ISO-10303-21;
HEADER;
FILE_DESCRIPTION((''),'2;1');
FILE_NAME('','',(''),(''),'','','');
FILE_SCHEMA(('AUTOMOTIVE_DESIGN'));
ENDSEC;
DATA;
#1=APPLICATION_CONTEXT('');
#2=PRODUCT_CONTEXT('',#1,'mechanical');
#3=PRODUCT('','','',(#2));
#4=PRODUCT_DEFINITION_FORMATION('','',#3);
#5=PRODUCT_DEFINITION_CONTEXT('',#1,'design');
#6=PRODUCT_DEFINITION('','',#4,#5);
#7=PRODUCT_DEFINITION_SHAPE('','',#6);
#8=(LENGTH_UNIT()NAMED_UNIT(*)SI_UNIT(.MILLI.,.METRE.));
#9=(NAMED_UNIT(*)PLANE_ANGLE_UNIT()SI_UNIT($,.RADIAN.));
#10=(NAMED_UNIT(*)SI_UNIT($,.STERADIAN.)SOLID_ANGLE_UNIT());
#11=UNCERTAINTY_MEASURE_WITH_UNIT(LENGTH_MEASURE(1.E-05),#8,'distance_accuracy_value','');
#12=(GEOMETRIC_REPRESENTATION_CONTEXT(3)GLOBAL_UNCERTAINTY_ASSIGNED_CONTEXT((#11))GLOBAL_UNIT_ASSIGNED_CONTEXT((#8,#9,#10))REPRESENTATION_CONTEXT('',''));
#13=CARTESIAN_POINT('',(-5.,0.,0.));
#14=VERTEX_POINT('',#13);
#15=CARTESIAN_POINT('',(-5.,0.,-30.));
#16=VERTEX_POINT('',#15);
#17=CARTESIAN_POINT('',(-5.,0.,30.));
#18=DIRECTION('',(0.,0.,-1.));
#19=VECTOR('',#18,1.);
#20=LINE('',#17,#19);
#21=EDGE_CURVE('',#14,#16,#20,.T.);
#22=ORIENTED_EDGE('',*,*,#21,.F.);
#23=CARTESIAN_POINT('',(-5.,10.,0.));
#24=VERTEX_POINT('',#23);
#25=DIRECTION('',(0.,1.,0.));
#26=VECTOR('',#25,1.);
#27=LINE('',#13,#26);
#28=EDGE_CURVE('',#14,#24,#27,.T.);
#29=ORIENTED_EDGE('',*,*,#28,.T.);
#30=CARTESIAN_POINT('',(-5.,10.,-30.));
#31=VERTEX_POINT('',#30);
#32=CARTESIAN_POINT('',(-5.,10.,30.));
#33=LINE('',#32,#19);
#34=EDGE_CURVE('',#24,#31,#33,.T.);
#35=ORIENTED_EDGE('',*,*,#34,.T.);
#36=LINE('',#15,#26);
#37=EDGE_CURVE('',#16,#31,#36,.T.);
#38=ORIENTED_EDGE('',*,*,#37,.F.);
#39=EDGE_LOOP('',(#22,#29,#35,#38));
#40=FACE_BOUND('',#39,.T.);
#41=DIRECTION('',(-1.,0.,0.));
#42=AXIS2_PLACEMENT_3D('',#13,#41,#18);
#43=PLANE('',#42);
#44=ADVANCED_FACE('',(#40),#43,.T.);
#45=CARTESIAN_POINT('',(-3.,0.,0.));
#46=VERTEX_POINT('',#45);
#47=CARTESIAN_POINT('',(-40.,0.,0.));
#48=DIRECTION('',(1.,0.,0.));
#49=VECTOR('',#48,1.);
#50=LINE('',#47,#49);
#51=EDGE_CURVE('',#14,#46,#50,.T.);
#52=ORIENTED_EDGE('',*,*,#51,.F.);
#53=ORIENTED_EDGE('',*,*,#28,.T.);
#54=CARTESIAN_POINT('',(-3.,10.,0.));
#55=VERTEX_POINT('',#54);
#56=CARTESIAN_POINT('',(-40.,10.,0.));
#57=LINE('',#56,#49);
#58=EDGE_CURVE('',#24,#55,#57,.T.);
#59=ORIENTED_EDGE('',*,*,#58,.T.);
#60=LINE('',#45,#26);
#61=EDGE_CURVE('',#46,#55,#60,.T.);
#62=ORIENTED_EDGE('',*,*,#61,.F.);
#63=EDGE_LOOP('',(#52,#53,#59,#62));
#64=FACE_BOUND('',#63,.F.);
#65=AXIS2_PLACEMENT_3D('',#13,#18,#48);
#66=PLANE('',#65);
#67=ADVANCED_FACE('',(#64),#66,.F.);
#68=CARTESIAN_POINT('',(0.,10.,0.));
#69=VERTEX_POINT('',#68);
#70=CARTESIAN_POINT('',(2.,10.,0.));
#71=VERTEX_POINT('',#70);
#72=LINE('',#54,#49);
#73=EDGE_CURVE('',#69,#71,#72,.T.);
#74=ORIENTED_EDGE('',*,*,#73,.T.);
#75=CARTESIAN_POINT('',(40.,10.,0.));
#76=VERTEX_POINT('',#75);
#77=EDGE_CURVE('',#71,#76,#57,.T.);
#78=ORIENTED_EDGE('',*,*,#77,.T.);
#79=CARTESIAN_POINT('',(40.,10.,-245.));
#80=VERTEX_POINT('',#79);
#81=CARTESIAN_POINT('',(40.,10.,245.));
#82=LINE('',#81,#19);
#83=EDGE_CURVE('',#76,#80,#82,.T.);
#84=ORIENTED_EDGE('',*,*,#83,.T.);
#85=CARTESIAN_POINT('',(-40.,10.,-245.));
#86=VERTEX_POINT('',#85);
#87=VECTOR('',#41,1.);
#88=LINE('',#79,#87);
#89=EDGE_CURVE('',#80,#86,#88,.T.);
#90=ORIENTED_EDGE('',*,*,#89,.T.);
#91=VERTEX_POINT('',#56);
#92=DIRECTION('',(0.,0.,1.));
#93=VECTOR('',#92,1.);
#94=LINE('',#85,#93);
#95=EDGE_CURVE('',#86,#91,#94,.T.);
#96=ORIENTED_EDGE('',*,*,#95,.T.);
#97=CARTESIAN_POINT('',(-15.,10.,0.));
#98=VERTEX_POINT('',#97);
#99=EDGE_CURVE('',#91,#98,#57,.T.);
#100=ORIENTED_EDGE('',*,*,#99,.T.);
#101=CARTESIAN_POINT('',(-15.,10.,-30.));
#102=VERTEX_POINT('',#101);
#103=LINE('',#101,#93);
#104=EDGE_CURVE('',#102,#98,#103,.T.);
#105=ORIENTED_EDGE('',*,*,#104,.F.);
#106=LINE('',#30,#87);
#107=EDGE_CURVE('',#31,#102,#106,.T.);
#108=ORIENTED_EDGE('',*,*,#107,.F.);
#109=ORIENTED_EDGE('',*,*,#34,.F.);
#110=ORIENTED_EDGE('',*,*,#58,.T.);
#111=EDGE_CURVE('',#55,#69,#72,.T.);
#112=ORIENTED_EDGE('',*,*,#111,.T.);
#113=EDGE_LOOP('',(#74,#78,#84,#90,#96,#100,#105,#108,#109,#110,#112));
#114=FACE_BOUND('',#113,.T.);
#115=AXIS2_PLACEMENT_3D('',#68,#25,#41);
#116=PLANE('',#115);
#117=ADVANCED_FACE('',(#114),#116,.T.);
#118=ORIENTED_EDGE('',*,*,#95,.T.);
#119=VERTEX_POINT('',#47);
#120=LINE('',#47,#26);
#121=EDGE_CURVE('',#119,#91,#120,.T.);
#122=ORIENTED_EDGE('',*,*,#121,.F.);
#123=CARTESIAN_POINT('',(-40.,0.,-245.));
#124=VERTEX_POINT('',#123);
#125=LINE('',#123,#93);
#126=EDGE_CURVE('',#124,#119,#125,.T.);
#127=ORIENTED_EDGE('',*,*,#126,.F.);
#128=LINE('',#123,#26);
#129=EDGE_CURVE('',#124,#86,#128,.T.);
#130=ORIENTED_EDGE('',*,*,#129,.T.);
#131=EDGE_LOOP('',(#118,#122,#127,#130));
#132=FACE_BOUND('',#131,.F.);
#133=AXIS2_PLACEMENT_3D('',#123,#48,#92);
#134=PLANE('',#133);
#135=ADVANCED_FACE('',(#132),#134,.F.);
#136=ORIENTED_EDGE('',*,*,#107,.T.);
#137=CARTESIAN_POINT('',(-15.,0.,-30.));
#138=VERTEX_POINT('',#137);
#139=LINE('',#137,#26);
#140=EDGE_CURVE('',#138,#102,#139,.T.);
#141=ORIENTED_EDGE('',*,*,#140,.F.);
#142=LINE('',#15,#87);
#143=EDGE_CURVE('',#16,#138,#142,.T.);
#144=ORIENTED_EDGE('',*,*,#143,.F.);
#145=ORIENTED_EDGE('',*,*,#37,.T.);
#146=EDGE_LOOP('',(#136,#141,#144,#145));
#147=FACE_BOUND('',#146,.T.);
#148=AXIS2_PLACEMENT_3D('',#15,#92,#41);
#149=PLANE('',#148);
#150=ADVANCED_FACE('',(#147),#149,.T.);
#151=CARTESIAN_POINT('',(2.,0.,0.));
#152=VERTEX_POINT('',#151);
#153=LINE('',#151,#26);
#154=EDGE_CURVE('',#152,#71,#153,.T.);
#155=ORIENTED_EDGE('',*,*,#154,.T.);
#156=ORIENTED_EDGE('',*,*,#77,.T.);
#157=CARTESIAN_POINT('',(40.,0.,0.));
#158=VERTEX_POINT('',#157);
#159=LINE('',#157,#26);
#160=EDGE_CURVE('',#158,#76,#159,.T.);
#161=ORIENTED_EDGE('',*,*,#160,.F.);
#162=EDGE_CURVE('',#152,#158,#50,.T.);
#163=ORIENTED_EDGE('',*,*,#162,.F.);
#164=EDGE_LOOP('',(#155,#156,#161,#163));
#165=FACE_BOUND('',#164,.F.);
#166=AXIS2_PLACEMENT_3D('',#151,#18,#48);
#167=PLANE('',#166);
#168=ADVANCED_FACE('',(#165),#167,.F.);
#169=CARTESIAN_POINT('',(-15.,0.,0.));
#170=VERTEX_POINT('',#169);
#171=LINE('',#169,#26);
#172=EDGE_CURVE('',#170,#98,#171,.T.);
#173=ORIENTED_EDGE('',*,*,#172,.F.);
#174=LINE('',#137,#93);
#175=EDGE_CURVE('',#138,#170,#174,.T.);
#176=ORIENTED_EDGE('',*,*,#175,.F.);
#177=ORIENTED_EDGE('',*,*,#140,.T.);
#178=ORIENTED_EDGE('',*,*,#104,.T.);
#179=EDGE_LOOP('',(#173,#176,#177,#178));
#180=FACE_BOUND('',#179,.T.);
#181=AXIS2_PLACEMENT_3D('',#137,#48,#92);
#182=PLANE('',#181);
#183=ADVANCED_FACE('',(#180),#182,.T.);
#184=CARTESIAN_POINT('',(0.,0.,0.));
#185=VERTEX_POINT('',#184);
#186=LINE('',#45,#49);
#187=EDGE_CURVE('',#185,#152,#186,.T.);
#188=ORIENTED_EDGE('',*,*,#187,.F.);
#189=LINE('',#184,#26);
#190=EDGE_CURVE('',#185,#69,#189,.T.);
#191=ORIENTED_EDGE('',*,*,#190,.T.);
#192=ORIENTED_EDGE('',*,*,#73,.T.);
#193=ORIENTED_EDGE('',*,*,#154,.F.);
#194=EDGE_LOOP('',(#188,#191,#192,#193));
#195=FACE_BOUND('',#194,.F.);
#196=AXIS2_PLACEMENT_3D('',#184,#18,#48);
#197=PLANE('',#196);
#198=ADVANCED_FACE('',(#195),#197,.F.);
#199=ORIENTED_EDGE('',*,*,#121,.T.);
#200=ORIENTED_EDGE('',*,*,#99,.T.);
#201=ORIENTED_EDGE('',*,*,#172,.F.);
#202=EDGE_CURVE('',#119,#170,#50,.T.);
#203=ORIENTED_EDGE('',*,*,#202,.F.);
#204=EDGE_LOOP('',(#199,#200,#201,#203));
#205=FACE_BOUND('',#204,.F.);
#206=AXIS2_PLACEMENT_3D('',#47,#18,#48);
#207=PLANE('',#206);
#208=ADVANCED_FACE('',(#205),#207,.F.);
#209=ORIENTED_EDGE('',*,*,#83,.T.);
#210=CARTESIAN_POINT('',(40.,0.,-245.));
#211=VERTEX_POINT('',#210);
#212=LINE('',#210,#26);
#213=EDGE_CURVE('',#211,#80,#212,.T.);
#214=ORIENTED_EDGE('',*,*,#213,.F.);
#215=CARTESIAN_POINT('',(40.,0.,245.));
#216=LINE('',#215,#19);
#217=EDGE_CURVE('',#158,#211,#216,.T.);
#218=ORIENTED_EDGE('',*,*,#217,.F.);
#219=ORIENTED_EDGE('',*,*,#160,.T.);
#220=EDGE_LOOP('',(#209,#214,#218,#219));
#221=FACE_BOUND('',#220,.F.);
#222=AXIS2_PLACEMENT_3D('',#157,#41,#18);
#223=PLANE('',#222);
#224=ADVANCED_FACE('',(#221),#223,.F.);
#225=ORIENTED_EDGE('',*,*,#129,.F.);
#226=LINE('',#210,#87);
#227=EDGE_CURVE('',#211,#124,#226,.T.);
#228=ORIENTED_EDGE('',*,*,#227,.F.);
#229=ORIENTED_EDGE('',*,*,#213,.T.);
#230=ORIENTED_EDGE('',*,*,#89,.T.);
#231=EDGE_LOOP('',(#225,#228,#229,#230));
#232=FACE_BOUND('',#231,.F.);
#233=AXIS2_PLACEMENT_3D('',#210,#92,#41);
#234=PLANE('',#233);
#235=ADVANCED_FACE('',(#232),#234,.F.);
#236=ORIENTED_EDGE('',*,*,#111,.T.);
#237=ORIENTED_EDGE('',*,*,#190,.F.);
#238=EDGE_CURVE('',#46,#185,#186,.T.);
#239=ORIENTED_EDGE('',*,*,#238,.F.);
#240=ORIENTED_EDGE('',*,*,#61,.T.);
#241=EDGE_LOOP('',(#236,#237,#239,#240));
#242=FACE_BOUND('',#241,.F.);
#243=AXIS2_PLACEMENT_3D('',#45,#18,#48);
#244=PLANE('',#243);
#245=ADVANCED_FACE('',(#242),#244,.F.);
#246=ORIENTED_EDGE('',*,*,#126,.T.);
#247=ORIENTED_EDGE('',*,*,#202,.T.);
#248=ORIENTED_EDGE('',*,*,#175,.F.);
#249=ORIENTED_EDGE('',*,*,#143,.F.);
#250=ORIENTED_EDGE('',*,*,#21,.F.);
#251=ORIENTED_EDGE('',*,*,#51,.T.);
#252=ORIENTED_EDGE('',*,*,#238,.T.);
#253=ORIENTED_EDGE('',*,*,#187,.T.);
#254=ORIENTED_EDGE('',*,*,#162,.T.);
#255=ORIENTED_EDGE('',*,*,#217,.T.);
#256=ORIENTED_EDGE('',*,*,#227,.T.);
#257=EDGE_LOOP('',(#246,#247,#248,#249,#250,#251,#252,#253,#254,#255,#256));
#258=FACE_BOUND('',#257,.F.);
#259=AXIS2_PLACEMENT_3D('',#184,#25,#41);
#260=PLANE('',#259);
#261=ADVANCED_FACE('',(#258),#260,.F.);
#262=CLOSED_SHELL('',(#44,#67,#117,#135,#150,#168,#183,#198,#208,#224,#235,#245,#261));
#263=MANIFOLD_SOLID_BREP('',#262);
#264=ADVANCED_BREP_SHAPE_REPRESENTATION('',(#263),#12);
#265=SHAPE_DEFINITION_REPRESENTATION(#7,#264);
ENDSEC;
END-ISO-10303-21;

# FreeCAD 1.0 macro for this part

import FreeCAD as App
import Part
import Sketcher

V = App.Vector
Q = App.Units.Quantity

doc = App.newDocument("Part")
body = doc.addObject("PartDesign::Body", "Body")

# Sketch on XZ plane
sketch1 = body.newObject("Sketcher::SketchObject", "Sketch")
sketch1.AttachmentSupport = (doc.getObject("XZ_Plane"), [""])
sketch1.MapMode = "FlatFace"
sketch1.addGeometry([
    Part.LineSegment(V(-40, -245, 0), V(-40, 0, 0)),  # 0
    Part.LineSegment(V(-40, 0, 0), V(-15, 0, 0)),  # 1
    Part.LineSegment(V(-15, 0, 0), V(-15, -30, 0)),  # 2
    Part.LineSegment(V(-15, -30, 0), V(-5, -30, 0)),  # 3
    Part.LineSegment(V(-5, -30, 0), V(-5, 0, 0)),  # 4
    Part.LineSegment(V(-5, 0, 0), V(40, 0, 0)),  # 5
    Part.LineSegment(V(40, 0, 0), V(40, -245, 0)),  # 6
    Part.LineSegment(V(40, -245, 0), V(-40, -245, 0)),  # 7
], False)
sketch1.addConstraint([
    Sketcher.Constraint("Coincident", 0, 2, 1, 1),
    Sketcher.Constraint("Coincident", 1, 2, 2, 1),
    Sketcher.Constraint("Coincident", 2, 2, 3, 1),
    Sketcher.Constraint("Coincident", 3, 2, 4, 1),
    Sketcher.Constraint("Coincident", 4, 2, 5, 1),
    Sketcher.Constraint("Coincident", 5, 2, 6, 1),
    Sketcher.Constraint("Coincident", 6, 2, 7, 1),
    Sketcher.Constraint("Coincident", 7, 2, 0, 1),
    Sketcher.Constraint("Vertical", 0),
    Sketcher.Constraint("Horizontal", 1),
    Sketcher.Constraint("Vertical", 2),
    Sketcher.Constraint("Horizontal", 3),
    Sketcher.Constraint("Vertical", 4),
    Sketcher.Constraint("Horizontal", 5),
    Sketcher.Constraint("Vertical", 6),
    Sketcher.Constraint("Horizontal", 7),
    Sketcher.Constraint("Symmetric", 0, 2, 5, 2, -1, 1),
    Sketcher.Constraint("PointOnObject", 0, 2, -1),
    Sketcher.Constraint("DistanceX", 1, 1, 1, 2, Q("25 mm")),
    Sketcher.Constraint("DistanceX", 3, 1, 3, 2, Q("10 mm")),
    Sketcher.Constraint("DistanceX", 7, 2, 7, 1, Q("80 mm")),
    Sketcher.Constraint("DistanceY", 0, 1, 0, 2, Q("245 mm")),
    Sketcher.Constraint("DistanceY", 2, 2, 2, 1, Q("30 mm")),
])
pad1 = body.newObject("PartDesign::Pad", "Pad")
pad1.Profile = sketch1
pad1.Length = 10
pad1.Reversed = True

doc.recompute()
